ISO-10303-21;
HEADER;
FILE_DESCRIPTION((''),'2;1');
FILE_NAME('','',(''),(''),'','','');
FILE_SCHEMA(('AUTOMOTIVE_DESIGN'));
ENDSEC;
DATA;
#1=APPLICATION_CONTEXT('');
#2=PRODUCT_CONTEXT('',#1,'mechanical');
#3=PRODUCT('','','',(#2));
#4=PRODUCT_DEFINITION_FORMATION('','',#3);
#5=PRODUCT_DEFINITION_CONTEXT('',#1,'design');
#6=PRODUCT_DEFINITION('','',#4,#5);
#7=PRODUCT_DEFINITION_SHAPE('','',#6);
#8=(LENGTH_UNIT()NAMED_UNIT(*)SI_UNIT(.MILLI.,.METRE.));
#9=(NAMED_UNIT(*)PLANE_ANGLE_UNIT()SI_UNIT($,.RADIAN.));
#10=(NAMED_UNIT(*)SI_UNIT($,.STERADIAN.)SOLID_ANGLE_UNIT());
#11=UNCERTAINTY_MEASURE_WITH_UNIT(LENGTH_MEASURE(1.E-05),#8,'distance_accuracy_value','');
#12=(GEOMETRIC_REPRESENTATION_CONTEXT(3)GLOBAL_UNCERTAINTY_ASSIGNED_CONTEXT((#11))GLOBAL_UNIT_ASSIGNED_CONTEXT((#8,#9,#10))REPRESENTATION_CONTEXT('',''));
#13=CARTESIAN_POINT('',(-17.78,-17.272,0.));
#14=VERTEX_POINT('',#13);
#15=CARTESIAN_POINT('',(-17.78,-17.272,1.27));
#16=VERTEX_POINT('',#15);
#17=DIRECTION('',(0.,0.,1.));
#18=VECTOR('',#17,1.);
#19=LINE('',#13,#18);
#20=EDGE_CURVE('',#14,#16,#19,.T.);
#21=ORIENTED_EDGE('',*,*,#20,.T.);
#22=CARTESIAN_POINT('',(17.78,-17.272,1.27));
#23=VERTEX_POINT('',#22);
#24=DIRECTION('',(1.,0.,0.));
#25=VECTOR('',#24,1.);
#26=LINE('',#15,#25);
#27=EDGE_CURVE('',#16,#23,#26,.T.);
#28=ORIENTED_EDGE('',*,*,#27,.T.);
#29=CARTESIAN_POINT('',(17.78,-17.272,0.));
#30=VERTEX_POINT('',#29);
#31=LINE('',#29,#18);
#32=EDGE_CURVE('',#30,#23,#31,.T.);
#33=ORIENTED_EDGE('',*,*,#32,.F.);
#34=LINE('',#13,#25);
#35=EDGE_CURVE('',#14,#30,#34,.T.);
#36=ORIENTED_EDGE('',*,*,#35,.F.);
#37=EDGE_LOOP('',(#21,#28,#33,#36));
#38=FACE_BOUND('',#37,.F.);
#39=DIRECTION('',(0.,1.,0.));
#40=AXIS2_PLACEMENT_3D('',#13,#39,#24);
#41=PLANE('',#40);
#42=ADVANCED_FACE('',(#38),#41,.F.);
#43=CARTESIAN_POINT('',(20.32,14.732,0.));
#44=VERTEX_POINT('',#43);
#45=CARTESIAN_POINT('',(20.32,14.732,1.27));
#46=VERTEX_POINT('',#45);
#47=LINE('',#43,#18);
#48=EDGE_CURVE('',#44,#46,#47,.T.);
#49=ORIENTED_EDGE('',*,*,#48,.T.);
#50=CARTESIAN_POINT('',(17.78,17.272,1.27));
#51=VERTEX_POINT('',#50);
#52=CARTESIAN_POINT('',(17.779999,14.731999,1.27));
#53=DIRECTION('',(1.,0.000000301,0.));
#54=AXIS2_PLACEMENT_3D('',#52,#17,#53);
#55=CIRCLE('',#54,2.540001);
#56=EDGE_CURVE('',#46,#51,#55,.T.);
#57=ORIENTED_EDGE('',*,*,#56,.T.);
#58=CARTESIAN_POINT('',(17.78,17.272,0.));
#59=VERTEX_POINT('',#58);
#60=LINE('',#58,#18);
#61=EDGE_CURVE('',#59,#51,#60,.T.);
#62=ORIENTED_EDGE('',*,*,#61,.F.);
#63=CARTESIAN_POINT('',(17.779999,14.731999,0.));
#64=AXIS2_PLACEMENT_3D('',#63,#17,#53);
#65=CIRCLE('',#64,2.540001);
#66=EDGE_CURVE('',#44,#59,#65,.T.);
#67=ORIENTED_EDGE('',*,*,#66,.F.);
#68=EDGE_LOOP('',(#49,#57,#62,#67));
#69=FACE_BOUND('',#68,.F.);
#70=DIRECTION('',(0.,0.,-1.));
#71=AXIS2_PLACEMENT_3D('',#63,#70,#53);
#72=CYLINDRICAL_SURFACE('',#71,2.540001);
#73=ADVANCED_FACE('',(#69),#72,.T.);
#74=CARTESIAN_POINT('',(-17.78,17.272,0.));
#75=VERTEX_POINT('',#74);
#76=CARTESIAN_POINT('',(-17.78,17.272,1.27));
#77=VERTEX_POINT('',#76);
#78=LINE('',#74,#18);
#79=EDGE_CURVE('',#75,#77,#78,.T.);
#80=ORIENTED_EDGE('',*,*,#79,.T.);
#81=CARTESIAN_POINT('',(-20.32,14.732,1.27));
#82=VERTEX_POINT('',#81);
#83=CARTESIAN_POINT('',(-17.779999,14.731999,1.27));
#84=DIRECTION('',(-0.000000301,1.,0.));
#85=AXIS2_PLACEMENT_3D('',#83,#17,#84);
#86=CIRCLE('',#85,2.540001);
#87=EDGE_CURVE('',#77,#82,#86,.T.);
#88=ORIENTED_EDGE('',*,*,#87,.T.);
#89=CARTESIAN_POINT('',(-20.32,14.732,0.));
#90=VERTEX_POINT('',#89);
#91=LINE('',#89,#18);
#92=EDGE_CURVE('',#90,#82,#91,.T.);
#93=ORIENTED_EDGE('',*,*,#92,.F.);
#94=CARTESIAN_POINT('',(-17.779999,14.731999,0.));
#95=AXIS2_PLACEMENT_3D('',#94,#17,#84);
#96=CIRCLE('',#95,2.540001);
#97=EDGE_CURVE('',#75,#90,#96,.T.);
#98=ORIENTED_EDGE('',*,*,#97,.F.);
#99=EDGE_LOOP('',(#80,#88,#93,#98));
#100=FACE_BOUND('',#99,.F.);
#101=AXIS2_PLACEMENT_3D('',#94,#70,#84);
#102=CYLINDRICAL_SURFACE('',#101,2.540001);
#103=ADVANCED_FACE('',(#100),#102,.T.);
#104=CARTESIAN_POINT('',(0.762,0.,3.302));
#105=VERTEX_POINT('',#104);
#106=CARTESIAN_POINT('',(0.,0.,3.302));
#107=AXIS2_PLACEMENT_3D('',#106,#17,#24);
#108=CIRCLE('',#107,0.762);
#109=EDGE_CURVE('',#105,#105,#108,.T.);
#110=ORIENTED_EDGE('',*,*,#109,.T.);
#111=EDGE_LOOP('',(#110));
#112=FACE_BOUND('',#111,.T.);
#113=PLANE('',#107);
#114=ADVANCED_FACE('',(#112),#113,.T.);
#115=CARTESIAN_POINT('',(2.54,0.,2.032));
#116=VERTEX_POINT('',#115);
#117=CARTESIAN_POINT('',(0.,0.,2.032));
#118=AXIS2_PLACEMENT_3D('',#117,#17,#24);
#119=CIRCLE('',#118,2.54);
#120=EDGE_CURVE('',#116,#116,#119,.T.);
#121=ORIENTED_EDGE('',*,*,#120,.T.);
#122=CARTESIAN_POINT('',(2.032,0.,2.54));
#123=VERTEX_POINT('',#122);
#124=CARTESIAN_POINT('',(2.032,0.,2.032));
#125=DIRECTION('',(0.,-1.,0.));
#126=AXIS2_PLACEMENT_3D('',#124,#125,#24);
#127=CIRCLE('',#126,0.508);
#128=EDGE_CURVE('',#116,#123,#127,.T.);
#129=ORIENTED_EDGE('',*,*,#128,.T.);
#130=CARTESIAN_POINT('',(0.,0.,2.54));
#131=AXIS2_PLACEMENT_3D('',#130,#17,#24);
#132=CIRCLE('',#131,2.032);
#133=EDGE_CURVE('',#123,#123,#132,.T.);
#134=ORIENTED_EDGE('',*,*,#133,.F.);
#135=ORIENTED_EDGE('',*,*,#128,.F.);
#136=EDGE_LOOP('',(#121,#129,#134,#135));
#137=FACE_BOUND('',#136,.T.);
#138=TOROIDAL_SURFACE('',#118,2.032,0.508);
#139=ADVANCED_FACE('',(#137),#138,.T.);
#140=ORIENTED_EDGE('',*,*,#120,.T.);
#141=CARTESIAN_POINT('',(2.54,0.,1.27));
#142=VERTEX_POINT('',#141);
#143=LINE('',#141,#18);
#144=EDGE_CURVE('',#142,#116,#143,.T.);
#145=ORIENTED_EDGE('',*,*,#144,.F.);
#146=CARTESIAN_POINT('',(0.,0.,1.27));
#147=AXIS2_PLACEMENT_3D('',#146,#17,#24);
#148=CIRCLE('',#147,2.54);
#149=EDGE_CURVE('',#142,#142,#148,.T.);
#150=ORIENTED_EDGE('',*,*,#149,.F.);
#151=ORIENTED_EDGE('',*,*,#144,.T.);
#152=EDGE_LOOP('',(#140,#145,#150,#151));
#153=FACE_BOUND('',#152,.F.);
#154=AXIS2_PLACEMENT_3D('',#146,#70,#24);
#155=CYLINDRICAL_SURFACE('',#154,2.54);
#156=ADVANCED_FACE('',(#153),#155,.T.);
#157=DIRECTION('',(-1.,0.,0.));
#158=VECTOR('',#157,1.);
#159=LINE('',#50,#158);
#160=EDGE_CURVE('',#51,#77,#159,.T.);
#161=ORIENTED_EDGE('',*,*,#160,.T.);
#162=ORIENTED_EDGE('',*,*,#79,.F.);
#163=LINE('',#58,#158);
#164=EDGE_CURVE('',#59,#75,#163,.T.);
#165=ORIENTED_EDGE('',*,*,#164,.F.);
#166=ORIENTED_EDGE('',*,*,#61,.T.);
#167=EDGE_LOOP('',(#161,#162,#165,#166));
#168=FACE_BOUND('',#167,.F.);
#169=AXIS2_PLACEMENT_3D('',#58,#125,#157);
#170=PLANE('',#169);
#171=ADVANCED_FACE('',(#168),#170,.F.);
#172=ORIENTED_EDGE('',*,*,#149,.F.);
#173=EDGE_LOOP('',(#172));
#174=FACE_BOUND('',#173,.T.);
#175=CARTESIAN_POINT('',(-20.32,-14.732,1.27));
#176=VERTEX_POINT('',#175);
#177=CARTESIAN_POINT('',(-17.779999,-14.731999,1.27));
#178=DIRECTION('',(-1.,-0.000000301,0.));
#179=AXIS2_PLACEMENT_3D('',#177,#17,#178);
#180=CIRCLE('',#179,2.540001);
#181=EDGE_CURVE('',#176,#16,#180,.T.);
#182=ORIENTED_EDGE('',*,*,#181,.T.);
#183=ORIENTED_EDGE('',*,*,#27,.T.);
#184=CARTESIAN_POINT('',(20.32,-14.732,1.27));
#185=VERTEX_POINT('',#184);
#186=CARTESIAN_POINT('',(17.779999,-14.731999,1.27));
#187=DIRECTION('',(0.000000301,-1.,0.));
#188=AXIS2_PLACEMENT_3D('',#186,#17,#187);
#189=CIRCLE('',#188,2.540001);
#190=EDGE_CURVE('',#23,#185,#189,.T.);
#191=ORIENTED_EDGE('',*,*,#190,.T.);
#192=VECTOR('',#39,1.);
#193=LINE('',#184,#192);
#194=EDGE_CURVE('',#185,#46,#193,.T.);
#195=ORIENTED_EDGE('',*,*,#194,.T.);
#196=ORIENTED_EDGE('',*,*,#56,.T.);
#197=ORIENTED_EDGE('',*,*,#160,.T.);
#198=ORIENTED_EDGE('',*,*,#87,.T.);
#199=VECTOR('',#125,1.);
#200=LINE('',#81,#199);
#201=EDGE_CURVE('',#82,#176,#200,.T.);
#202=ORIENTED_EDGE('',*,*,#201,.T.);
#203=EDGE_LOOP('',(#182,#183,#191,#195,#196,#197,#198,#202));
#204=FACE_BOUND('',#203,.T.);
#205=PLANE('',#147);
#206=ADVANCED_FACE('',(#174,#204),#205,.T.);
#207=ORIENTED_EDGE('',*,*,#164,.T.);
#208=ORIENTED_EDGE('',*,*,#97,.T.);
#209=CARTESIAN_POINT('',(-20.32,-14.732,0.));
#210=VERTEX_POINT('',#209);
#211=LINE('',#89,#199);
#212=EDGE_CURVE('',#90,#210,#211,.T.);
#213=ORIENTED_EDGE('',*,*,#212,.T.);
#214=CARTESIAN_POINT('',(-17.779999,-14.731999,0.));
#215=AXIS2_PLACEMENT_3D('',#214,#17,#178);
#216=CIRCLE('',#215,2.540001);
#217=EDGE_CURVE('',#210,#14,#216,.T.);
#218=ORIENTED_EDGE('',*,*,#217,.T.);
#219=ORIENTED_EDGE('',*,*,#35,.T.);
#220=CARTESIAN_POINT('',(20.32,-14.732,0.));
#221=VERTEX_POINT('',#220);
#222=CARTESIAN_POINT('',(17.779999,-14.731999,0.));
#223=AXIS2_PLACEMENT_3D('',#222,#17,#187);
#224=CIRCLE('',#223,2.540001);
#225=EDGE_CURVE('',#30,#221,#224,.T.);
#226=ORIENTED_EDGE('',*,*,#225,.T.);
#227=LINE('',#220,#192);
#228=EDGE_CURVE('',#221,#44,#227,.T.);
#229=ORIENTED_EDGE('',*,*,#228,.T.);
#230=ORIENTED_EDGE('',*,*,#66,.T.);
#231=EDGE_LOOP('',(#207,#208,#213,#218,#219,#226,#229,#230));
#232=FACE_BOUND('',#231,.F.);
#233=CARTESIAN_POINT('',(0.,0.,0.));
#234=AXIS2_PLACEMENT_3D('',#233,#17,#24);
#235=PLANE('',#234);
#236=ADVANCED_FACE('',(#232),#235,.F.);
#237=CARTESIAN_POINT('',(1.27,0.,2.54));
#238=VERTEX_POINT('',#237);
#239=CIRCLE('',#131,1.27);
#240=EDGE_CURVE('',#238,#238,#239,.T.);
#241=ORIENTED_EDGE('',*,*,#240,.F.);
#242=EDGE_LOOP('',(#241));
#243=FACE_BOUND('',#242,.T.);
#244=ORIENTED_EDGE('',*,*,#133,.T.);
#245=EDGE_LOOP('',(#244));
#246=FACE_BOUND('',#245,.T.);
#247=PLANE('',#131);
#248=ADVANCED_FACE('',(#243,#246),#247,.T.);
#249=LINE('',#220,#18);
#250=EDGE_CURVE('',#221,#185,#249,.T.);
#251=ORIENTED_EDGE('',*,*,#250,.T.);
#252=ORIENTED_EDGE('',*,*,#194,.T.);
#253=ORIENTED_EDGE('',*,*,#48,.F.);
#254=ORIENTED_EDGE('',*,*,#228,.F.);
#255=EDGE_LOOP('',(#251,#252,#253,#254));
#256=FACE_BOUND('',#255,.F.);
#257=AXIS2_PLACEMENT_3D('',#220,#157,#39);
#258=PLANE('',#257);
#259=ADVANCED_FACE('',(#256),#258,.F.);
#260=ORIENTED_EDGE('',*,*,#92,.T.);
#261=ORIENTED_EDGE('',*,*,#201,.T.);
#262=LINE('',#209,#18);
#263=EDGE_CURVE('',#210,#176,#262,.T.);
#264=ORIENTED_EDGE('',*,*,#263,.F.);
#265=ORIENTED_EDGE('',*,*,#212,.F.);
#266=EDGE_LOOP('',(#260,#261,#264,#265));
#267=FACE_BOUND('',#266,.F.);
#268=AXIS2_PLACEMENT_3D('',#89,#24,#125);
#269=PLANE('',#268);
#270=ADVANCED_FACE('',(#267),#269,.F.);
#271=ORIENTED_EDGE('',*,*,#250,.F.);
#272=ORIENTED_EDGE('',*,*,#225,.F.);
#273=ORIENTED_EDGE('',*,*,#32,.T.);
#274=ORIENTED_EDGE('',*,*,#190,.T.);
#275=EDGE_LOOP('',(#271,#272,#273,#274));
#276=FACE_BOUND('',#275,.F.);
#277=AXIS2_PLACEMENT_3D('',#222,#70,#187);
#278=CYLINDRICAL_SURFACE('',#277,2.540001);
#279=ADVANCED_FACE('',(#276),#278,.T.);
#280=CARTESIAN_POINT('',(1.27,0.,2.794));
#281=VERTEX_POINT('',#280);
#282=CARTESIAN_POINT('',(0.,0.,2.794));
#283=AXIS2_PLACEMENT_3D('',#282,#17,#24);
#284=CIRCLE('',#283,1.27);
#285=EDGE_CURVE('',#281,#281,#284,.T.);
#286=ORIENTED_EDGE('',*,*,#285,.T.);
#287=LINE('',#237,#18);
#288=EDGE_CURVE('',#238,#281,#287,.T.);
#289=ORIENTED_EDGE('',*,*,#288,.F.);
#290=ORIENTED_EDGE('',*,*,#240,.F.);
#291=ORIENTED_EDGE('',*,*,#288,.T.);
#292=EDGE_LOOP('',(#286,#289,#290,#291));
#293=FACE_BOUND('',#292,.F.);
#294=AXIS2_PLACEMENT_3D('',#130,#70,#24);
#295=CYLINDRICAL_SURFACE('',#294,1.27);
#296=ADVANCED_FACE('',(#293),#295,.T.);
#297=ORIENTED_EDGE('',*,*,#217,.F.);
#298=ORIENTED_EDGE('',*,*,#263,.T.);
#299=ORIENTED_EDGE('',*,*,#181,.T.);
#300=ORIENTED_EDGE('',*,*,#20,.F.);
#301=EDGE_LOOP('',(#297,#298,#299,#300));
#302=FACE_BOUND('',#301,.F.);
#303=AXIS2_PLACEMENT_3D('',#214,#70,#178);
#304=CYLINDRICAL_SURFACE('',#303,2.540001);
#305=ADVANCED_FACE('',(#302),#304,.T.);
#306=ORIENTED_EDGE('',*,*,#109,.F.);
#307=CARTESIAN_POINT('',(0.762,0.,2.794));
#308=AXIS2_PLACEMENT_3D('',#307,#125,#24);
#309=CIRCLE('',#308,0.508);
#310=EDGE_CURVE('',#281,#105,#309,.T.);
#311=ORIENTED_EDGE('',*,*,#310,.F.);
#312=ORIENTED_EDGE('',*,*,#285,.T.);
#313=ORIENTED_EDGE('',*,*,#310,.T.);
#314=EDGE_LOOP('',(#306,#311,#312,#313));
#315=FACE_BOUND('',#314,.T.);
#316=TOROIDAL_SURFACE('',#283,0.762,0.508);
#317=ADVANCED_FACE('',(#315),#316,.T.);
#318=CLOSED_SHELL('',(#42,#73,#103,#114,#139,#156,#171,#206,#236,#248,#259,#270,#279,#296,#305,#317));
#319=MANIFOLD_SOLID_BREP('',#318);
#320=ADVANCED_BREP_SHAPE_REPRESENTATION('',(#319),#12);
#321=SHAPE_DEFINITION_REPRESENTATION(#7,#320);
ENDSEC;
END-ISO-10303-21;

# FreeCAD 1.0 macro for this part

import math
import FreeCAD as App
import Part
import Sketcher
Q = App.Units.Quantity


def edges_at(feature, points):
    """Names of the edges that pass closest to the given points."""
    edges = feature.Shape.Edges
    near = lambda p: min(range(len(edges)), key=lambda i: edges[i].distToShape(Part.Vertex(*p))[0])
    return sorted({f"Edge{near(p) + 1}" for p in points})

doc = App.newDocument("Part")
body = doc.addObject("PartDesign::Body", "Body")

# Sketch on XY plane
sketch1 = body.newObject("Sketcher::SketchObject", "Sketch")
sketch1.AttachmentSupport = (doc.getObject("XY_Plane"), [""])
sketch1.MapMode = "FlatFace"
sketch1.addGeometry([
    Part.ArcOfCircle(Part.Circle(App.Vector(17.8, 14.7, 0), App.Vector(0, 0, 1), 2.5), math.radians(0), math.radians(90)),  # 0
    Part.LineSegment(App.Vector(17.8, 17.3, 0), App.Vector(-17.8, 17.3, 0)),  # 1
    Part.ArcOfCircle(Part.Circle(App.Vector(-17.8, 14.7, 0), App.Vector(0, 0, 1), 2.5), math.radians(90), math.radians(180)),  # 2
    Part.LineSegment(App.Vector(-20.3, 14.7, 0), App.Vector(-20.3, -14.7, 0)),  # 3
    Part.ArcOfCircle(Part.Circle(App.Vector(-17.8, -14.7, 0), App.Vector(0, 0, 1), 2.5), math.radians(-180), math.radians(-90)),  # 4
    Part.LineSegment(App.Vector(-17.8, -17.3, 0), App.Vector(17.8, -17.3, 0)),  # 5
    Part.ArcOfCircle(Part.Circle(App.Vector(17.8, -14.7, 0), App.Vector(0, 0, 1), 2.5), math.radians(-90), math.radians(0)),  # 6
    Part.LineSegment(App.Vector(20.3, -14.7, 0), App.Vector(20.3, 14.7, 0)),  # 7
], False)
sketch1.addConstraint([
    Sketcher.Constraint("Tangent", 0, 2, 1, 1),
    Sketcher.Constraint("Tangent", 1, 2, 2, 1),
    Sketcher.Constraint("Tangent", 2, 2, 3, 1),
    Sketcher.Constraint("Tangent", 3, 2, 4, 1),
    Sketcher.Constraint("Tangent", 4, 2, 5, 1),
    Sketcher.Constraint("Tangent", 5, 2, 6, 1),
    Sketcher.Constraint("Tangent", 6, 2, 7, 1),
    Sketcher.Constraint("Tangent", 7, 2, 0, 1),
    Sketcher.Constraint("Horizontal", 1),
    Sketcher.Constraint("Vertical", 3),
    Sketcher.Constraint("Horizontal", 5),
    Sketcher.Constraint("Vertical", 7),
    Sketcher.Constraint("Equal", 0, 2),
    Sketcher.Constraint("Equal", 2, 4),
    Sketcher.Constraint("Equal", 4, 6),
    Sketcher.Constraint("Symmetric", 0, 3, 4, 3, -1, 1),
    Sketcher.Constraint("Radius", 0, Q("0.1 in")),
    Sketcher.Constraint("DistanceX", 1, 2, 1, 1, Q("1.4 in")),
    Sketcher.Constraint("DistanceY", 3, 2, 3, 1, Q("1.16 in")),
])
pad1 = body.newObject("PartDesign::Pad", "Pad")
pad1.Profile = sketch1
pad1.Length = Q("0.05 in")

# Sketch on XY plane
sketch2 = body.newObject("Sketcher::SketchObject", "Sketch001")
sketch2.AttachmentSupport = (doc.getObject("XY_Plane"), [""])
sketch2.MapMode = "FlatFace"
sketch2.AttachmentOffset = App.Placement(App.Vector(0, 0, 0.05 * 25.4), App.Rotation())
sketch2.addGeometry(Part.Circle(App.Vector(0, 0, 0), App.Vector(0, 0, 1), 2.5), False)
sketch2.addConstraint([
    Sketcher.Constraint("Coincident", 0, 3, -1, 1),
    Sketcher.Constraint("Diameter", 0, Q("0.2 in")),
])
pad2 = body.newObject("PartDesign::Pad", "Pad001")
pad2.Profile = sketch2
pad2.Length = Q("0.05 in")

# Sketch on XY plane
sketch3 = body.newObject("Sketcher::SketchObject", "Sketch002")
sketch3.AttachmentSupport = (doc.getObject("XY_Plane"), [""])
sketch3.MapMode = "FlatFace"
sketch3.AttachmentOffset = App.Placement(App.Vector(0, 0, 0.1 * 25.4), App.Rotation())
sketch3.addGeometry(Part.Circle(App.Vector(0, 0, 0), App.Vector(0, 0, 1), 1.3), False)
sketch3.addConstraint([
    Sketcher.Constraint("Coincident", 0, 3, -1, 1),
    Sketcher.Constraint("Diameter", 0, Q("0.1 in")),
])
pad3 = body.newObject("PartDesign::Pad", "Pad002")
pad3.Profile = sketch3
pad3.Length = Q("0.03 in")
doc.recompute()

fillet = body.newObject("PartDesign::Fillet", "Fillet")
fillet.Base = (pad3, edges_at(pad3, [(-2.54, 0, 2.54), (-1.27, 0, 3.302)]))
fillet.Radius = Q("0.02 in")

doc.recompute()
